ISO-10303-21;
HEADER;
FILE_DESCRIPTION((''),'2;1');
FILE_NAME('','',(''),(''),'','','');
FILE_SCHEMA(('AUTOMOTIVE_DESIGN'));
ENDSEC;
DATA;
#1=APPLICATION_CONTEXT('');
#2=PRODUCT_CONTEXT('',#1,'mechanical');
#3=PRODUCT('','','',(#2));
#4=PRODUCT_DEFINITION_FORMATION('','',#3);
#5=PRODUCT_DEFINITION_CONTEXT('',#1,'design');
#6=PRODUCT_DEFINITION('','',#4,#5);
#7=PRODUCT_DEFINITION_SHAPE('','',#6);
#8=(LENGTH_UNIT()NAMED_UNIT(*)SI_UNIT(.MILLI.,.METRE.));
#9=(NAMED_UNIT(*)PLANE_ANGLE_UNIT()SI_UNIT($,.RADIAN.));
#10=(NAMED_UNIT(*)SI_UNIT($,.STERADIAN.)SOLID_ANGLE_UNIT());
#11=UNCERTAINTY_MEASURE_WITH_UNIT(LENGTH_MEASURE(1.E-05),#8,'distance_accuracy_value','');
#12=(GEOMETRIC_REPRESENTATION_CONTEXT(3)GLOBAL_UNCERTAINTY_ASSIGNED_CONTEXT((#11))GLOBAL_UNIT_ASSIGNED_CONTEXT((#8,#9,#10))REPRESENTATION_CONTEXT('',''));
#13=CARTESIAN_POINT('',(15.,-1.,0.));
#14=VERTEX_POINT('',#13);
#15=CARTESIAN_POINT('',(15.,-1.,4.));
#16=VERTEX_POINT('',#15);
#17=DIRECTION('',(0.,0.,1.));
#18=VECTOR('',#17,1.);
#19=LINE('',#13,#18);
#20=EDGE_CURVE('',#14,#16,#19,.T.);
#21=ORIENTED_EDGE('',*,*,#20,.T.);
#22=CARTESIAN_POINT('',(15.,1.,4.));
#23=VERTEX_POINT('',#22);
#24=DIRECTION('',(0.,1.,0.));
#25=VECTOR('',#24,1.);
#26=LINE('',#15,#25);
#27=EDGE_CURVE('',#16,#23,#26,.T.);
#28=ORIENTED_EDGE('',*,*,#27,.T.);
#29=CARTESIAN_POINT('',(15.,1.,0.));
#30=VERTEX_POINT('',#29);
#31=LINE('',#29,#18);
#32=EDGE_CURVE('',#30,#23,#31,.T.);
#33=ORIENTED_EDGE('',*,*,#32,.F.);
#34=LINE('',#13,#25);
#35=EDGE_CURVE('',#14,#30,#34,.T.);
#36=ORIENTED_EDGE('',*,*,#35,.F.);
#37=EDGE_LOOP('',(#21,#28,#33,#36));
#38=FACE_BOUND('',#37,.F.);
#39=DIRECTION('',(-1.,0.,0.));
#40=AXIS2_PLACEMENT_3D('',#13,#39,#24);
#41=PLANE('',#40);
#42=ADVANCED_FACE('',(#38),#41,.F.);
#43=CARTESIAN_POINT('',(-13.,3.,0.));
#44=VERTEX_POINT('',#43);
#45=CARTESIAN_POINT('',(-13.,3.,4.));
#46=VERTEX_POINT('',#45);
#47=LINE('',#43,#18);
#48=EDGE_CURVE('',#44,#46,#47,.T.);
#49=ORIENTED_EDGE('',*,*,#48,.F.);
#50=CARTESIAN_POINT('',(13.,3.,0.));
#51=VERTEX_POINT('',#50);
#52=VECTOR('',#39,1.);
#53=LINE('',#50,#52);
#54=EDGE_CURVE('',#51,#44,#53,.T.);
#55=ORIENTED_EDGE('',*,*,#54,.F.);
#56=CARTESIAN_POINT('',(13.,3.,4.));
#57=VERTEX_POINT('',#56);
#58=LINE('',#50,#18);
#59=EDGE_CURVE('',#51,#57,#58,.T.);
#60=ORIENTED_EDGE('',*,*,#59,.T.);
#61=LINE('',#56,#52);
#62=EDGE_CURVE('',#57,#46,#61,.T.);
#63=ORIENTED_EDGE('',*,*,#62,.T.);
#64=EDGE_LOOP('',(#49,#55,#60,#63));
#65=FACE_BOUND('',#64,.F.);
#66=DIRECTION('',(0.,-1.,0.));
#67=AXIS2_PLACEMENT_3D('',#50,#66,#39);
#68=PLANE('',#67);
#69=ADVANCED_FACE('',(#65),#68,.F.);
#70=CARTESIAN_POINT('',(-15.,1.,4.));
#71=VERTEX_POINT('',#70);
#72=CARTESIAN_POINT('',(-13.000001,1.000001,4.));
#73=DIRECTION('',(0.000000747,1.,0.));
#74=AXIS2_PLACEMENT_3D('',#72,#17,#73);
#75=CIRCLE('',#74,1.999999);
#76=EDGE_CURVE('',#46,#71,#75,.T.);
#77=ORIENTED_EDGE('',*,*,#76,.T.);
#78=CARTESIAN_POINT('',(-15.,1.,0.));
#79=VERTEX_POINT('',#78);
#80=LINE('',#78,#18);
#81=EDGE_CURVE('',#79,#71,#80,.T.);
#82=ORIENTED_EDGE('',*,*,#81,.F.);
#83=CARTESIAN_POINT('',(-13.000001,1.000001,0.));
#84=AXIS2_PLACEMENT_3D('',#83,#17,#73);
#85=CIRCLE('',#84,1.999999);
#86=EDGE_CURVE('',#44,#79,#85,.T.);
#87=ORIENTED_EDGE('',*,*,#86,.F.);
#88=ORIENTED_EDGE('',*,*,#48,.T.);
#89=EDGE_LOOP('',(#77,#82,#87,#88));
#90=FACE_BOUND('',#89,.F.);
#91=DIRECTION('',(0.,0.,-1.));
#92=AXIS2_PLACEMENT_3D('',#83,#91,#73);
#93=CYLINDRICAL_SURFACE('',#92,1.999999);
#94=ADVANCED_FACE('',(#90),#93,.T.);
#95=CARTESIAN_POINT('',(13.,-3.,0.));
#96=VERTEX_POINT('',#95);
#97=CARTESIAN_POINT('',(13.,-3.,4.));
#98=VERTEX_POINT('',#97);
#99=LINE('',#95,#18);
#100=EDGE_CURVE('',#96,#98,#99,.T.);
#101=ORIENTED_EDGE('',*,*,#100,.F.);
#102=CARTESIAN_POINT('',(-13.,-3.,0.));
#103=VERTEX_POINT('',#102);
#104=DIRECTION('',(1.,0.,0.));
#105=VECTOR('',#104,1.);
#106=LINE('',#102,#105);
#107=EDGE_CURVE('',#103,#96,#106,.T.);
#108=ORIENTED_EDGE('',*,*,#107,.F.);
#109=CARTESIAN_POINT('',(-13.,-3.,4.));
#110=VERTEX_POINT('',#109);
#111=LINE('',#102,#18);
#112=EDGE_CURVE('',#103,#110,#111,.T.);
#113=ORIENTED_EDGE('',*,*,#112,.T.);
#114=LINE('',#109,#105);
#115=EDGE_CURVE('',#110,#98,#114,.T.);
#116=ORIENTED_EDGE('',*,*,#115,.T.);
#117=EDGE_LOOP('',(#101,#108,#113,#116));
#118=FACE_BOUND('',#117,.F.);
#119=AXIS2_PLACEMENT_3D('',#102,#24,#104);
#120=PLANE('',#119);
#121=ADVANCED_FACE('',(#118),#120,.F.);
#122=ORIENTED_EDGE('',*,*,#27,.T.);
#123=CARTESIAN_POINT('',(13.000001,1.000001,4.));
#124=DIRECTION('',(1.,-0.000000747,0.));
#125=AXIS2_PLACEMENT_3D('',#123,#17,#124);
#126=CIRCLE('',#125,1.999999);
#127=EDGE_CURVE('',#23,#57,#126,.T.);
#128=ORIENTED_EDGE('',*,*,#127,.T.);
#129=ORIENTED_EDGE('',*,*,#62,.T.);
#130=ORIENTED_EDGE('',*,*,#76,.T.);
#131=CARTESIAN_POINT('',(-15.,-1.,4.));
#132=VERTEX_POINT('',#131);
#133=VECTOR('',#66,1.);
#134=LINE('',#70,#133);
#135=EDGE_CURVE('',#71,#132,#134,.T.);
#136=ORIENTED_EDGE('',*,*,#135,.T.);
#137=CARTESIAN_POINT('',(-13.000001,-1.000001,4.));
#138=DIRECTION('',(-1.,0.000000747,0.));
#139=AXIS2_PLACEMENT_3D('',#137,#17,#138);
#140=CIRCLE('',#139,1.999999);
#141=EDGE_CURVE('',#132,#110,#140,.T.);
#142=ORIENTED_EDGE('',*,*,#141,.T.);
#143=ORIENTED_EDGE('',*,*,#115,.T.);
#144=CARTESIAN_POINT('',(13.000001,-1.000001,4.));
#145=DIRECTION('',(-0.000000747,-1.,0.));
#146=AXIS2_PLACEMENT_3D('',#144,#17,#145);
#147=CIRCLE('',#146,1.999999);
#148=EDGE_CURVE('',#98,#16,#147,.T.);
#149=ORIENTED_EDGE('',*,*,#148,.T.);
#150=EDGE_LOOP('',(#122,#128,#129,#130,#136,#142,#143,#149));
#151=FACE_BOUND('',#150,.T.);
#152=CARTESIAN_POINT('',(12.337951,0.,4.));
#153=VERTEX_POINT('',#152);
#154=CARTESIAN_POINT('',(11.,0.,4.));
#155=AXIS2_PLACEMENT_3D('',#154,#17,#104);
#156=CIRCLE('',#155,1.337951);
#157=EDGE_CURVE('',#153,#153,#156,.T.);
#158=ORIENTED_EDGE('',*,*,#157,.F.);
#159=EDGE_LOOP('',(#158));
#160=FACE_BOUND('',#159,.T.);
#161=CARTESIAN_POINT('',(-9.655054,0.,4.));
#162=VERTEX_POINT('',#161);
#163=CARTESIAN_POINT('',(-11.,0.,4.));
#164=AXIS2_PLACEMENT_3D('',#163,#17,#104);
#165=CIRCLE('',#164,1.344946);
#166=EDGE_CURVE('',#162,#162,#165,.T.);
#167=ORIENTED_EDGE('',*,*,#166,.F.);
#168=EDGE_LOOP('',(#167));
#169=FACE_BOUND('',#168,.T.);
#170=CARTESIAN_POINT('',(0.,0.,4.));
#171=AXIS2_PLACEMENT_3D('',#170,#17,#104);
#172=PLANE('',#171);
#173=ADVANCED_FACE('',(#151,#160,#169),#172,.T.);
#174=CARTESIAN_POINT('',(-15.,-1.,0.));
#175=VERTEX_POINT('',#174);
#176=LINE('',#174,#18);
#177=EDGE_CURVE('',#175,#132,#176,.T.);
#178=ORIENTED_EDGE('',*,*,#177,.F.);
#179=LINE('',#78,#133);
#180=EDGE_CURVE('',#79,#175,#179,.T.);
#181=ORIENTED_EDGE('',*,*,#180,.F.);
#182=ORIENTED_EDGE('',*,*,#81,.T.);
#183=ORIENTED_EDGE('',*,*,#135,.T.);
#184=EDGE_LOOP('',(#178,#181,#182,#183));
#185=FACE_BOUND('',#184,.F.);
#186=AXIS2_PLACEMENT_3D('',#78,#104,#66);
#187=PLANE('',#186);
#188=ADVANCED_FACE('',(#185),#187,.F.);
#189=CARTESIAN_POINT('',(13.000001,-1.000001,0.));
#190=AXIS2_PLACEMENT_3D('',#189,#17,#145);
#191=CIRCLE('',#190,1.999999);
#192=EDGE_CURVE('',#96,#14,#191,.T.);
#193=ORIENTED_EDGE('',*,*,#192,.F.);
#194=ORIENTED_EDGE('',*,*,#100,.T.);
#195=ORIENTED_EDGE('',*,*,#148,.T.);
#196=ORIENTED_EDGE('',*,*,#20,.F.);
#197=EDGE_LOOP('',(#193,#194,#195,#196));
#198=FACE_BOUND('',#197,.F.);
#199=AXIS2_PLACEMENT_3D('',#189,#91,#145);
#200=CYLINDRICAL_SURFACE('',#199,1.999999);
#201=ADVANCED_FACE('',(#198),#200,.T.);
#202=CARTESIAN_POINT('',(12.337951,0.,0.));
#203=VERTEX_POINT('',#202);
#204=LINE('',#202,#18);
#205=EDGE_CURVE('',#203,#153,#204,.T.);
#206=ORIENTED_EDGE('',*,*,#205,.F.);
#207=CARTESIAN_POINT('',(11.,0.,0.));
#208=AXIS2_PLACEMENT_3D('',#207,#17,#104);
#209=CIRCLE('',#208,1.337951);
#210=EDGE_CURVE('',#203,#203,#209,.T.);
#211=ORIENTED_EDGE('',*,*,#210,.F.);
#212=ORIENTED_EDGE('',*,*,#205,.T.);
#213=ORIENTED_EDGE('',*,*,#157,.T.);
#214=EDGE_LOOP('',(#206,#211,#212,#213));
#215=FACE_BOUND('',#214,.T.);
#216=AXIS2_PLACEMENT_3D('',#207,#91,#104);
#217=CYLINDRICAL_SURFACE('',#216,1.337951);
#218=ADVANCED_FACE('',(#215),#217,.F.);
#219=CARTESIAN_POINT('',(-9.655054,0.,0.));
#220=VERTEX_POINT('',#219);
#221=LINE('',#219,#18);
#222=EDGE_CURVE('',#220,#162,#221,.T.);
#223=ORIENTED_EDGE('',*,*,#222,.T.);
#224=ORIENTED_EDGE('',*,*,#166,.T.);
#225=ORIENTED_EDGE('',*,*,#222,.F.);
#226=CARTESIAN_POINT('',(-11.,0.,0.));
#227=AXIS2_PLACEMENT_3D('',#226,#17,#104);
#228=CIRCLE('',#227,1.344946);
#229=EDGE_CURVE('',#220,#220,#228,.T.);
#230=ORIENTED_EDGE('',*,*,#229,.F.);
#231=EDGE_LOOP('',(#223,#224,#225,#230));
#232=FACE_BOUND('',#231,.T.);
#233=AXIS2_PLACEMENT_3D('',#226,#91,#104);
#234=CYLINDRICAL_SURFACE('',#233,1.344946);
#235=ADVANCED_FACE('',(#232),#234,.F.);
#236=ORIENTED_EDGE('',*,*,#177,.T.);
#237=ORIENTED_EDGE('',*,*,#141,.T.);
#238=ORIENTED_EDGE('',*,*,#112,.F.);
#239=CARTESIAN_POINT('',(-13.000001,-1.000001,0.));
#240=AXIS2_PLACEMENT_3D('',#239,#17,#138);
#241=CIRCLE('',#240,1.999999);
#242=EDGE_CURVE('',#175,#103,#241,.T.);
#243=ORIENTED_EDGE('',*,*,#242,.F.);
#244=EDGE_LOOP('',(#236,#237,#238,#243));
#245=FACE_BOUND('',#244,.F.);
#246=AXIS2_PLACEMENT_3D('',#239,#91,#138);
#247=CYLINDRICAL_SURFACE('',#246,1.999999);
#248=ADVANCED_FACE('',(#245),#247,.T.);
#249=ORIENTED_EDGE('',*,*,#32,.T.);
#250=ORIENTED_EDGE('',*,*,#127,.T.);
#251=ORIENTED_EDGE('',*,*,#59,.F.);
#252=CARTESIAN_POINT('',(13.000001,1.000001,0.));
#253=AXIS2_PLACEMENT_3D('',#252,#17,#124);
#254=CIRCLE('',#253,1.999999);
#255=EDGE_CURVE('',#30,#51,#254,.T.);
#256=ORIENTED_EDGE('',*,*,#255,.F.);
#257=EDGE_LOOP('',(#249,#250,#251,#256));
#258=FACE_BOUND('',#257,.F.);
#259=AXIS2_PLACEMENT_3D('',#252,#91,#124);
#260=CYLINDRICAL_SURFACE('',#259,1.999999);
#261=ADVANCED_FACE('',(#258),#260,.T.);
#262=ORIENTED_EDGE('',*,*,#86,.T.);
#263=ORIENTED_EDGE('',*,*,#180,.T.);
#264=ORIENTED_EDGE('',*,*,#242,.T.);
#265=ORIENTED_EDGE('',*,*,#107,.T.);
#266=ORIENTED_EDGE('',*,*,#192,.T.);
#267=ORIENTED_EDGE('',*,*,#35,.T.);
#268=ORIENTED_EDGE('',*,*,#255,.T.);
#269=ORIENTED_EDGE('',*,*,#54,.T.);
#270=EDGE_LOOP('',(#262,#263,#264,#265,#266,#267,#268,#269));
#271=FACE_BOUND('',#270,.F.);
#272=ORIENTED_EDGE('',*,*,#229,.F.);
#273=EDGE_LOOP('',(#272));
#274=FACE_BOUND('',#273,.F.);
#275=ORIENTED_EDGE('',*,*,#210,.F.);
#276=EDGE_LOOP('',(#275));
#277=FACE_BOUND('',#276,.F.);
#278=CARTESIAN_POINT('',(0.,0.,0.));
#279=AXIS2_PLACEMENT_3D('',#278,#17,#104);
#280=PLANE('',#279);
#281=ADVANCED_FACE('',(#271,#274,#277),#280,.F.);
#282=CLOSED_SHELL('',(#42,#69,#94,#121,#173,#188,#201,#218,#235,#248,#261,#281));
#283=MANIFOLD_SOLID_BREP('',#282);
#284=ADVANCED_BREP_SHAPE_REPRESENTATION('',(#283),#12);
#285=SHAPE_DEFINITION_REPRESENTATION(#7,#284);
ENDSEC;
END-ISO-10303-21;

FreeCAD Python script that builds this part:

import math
import FreeCAD as App
import Part
import Sketcher
Q = App.Units.Quantity

doc = App.newDocument("Part")
body = doc.addObject("PartDesign::Body", "Body")

# Sketch on XY plane
sketch1 = body.newObject("Sketcher::SketchObject", "Sketch")
sketch1.AttachmentSupport = (doc.getObject("XY_Plane"), [""])
sketch1.MapMode = "FlatFace"
sketch1.addGeometry([
    Part.ArcOfCircle(Part.Circle(App.Vector(13.000001, 1.000001, 0), App.Vector(0, 0, 1), 1.999999), math.radians(-0.000043), math.radians(90.000043)),  # 0
    Part.LineSegment(App.Vector(13, 3, 0), App.Vector(-13, 3, 0)),  # 1
    Part.ArcOfCircle(Part.Circle(App.Vector(-13.000001, 1.000001, 0), App.Vector(0, 0, 1), 1.999999), math.radians(89.999957), math.radians(180.000043)),  # 2
    Part.LineSegment(App.Vector(-15, 1, 0), App.Vector(-15, -1, 0)),  # 3
    Part.ArcOfCircle(Part.Circle(App.Vector(-13.000001, -1.000001, 0), App.Vector(0, 0, 1), 1.999999), math.radians(179.999957), math.radians(270.000043)),  # 4
    Part.LineSegment(App.Vector(-13, -3, 0), App.Vector(13, -3, 0)),  # 5
    Part.ArcOfCircle(Part.Circle(App.Vector(13.000001, -1.000001, 0), App.Vector(0, 0, 1), 1.999999), math.radians(-90.000043), math.radians(0.000043)),  # 6
    Part.LineSegment(App.Vector(15, -1, 0), App.Vector(15, 1, 0)),  # 7
    Part.Circle(App.Vector(-11, 0, 0), App.Vector(0, 0, 1), 1.344946),  # 8
    Part.Circle(App.Vector(11, 0, 0), App.Vector(0, 0, 1), 1.337951),  # 9
], False)
sketch1.addConstraint([
    Sketcher.Constraint("Tangent", 0, 2, 1, 1),
    Sketcher.Constraint("Tangent", 1, 2, 2, 1),
    Sketcher.Constraint("Tangent", 2, 2, 3, 1),
    Sketcher.Constraint("Tangent", 3, 2, 4, 1),
    Sketcher.Constraint("Tangent", 4, 2, 5, 1),
    Sketcher.Constraint("Tangent", 5, 2, 6, 1),
    Sketcher.Constraint("Tangent", 6, 2, 7, 1),
    Sketcher.Constraint("Tangent", 7, 2, 0, 1),
    Sketcher.Constraint("Horizontal", 1),
    Sketcher.Constraint("Vertical", 3),
    Sketcher.Constraint("Horizontal", 5),
    Sketcher.Constraint("Vertical", 7),
    Sketcher.Constraint("Equal", 0, 2),
    Sketcher.Constraint("Equal", 2, 4),
    Sketcher.Constraint("Equal", 4, 6),
    Sketcher.Constraint("Symmetric", 0, 3, 4, 3, -1, 1),
    Sketcher.Constraint("Symmetric", 8, 3, 9, 3, -1, 1),
    Sketcher.Constraint("PointOnObject", 8, 3, -1),
    Sketcher.Constraint("Radius", 0, Q("1.999999 mm")),
    Sketcher.Constraint("DistanceX", 1, 2, 1, 1, Q("26 mm")),
    Sketcher.Constraint("DistanceY", 3, 2, 3, 1, Q("2 mm")),
    Sketcher.Constraint("DistanceX", 8, 3, -1, 1, Q("11 mm")),
    Sketcher.Constraint("Diameter", 9, Q("2.675902 mm")),
    Sketcher.Constraint("Diameter", 8, Q("2.689892 mm")),
])
pad1 = body.newObject("PartDesign::Pad", "Pad")
pad1.Profile = sketch1
pad1.Length = 4

doc.recompute()
